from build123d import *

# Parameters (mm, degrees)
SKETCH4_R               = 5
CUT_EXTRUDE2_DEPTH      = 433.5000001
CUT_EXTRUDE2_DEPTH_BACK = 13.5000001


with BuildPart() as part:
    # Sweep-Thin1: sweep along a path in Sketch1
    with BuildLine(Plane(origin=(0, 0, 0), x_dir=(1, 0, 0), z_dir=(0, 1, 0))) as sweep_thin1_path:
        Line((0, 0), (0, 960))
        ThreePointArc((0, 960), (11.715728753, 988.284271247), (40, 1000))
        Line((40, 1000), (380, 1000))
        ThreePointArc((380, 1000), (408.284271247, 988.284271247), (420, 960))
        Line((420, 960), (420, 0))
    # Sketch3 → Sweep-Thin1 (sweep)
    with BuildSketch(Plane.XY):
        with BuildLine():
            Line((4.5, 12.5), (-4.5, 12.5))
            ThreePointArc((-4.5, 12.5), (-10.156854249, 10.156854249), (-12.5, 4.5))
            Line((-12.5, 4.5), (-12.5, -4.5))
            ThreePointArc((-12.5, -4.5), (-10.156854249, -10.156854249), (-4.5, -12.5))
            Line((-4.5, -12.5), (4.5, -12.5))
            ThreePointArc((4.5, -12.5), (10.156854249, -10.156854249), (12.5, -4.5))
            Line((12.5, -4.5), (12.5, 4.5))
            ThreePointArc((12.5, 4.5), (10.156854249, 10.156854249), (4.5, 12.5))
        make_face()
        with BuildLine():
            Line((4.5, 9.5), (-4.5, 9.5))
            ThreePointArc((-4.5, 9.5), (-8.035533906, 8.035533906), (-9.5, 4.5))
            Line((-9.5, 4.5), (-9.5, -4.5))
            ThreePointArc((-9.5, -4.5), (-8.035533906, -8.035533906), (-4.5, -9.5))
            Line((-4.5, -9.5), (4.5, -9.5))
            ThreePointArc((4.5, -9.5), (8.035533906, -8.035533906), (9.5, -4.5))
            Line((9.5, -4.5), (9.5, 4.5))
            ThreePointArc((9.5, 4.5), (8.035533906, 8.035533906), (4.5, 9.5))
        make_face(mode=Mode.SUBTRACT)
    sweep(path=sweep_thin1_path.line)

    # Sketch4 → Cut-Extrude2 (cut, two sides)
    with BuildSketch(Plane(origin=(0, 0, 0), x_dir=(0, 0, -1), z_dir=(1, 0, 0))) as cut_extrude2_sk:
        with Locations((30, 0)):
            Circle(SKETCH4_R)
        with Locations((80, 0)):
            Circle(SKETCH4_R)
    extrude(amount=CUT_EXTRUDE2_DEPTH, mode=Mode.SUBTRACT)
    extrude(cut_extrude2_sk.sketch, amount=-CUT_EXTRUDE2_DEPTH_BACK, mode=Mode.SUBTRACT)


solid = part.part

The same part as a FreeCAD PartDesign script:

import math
import FreeCAD as App
import Part
import Sketcher

V = App.Vector
Q = App.Units.Quantity

doc = App.newDocument("Part")
body = doc.addObject("PartDesign::Body", "Body")

# Sketch on XY plane
sketch1 = body.newObject("Sketcher::SketchObject", "Sketch")
sketch1.AttachmentSupport = (doc.getObject("XY_Plane"), [""])
sketch1.MapMode = "FlatFace"
sketch1.addGeometry([
    Part.LineSegment(V(4.5, 12.5, 0), V(-4.5, 12.5, 0)),  # 0
    Part.ArcOfCircle(Part.Circle(V(-4.5, 4.5, 0), V(0, 0, 1), 8), math.radians(90), math.radians(180)),  # 1
    Part.LineSegment(V(-12.5, 4.5, 0), V(-12.5, -4.5, 0)),  # 2
    Part.ArcOfCircle(Part.Circle(V(-4.5, -4.5, 0), V(0, 0, 1), 8), math.radians(-180), math.radians(-90)),  # 3
    Part.LineSegment(V(-4.5, -12.5, 0), V(4.5, -12.5, 0)),  # 4
    Part.ArcOfCircle(Part.Circle(V(4.5, -4.5, 0), V(0, 0, 1), 8), math.radians(-90), math.radians(0)),  # 5
    Part.LineSegment(V(12.5, -4.5, 0), V(12.5, 4.5, 0)),  # 6
    Part.ArcOfCircle(Part.Circle(V(4.5, 4.5, 0), V(0, 0, 1), 8), math.radians(0), math.radians(90)),  # 7
    Part.LineSegment(V(-4.5, 9.5, 0), V(4.5, 9.5, 0)),  # 8
    Part.ArcOfCircle(Part.Circle(V(4.5, 4.5, 0), V(0, 0, 1), 5), math.radians(0), math.radians(90)),  # 9
    Part.LineSegment(V(9.5, 4.5, 0), V(9.5, -4.5, 0)),  # 10
    Part.ArcOfCircle(Part.Circle(V(4.5, -4.5, 0), V(0, 0, 1), 5), math.radians(-90), math.radians(0)),  # 11
    Part.LineSegment(V(4.5, -9.5, 0), V(-4.5, -9.5, 0)),  # 12
    Part.ArcOfCircle(Part.Circle(V(-4.5, -4.5, 0), V(0, 0, 1), 5), math.radians(180), math.radians(270)),  # 13
    Part.LineSegment(V(-9.5, -4.5, 0), V(-9.5, 4.5, 0)),  # 14
    Part.ArcOfCircle(Part.Circle(V(-4.5, 4.5, 0), V(0, 0, 1), 5), math.radians(90), math.radians(180)),  # 15
], False)
sketch1.addConstraint([
    Sketcher.Constraint("Tangent", 0, 2, 1, 1),
    Sketcher.Constraint("Tangent", 1, 2, 2, 1),
    Sketcher.Constraint("Tangent", 2, 2, 3, 1),
    Sketcher.Constraint("Tangent", 3, 2, 4, 1),
    Sketcher.Constraint("Tangent", 4, 2, 5, 1),
    Sketcher.Constraint("Tangent", 5, 2, 6, 1),
    Sketcher.Constraint("Tangent", 6, 2, 7, 1),
    Sketcher.Constraint("Tangent", 7, 2, 0, 1),
    Sketcher.Constraint("Tangent", 8, 2, 9, 2),
    Sketcher.Constraint("Tangent", 9, 1, 10, 1),
    Sketcher.Constraint("Tangent", 10, 2, 11, 2),
    Sketcher.Constraint("Tangent", 11, 1, 12, 1),
    Sketcher.Constraint("Tangent", 12, 2, 13, 2),
    Sketcher.Constraint("Tangent", 13, 1, 14, 1),
    Sketcher.Constraint("Tangent", 14, 2, 15, 2),
    Sketcher.Constraint("Tangent", 15, 1, 8, 1),
    Sketcher.Constraint("Horizontal", 0),
    Sketcher.Constraint("Vertical", 2),
    Sketcher.Constraint("Horizontal", 4),
    Sketcher.Constraint("Vertical", 6),
    Sketcher.Constraint("Horizontal", 8),
    Sketcher.Constraint("Vertical", 10),
    Sketcher.Constraint("Horizontal", 12),
    Sketcher.Constraint("Vertical", 14),
    Sketcher.Constraint("Coincident", 9, 3, 7, 3),
    Sketcher.Constraint("Coincident", 11, 3, 5, 3),
    Sketcher.Constraint("Coincident", 13, 3, 3, 3),
    Sketcher.Constraint("Equal", 1, 3),
    Sketcher.Constraint("Equal", 3, 5),
    Sketcher.Constraint("Equal", 5, 7),
    Sketcher.Constraint("Equal", 13, 15),
    Sketcher.Constraint("Symmetric", 1, 3, 5, 3, -1, 1),
    Sketcher.Constraint("Equal", 12, 2),
    Sketcher.Constraint("Radius", 1, Q("8 mm")),
    Sketcher.Constraint("Radius", 9, Q("5 mm")),
    Sketcher.Constraint("DistanceX", 0, 2, 0, 1, Q("9 mm")),
])

# Sketch on XZ plane
sketch2 = body.newObject("Sketcher::SketchObject", "Sketch001")
sketch2.AttachmentSupport = (doc.getObject("XZ_Plane"), [""])
sketch2.MapMode = "FlatFace"
sketch2.addGeometry([
    Part.LineSegment(V(0, 0, 0), V(0, -960, 0)),  # 0
    Part.ArcOfCircle(Part.Circle(V(40, -960, 0), V(0, 0, 1), 40), math.radians(-180), math.radians(-90)),  # 1
    Part.LineSegment(V(40, -1000, 0), V(380, -1000, 0)),  # 2
    Part.ArcOfCircle(Part.Circle(V(380, -960, 0), V(0, 0, 1), 40), math.radians(-90), math.radians(0)),  # 3
    Part.LineSegment(V(420, -960, 0), V(420, 0, 0)),  # 4
], False)
sketch2.addConstraint([
    Sketcher.Constraint("Tangent", 0, 2, 1, 1),
    Sketcher.Constraint("Tangent", 1, 2, 2, 1),
    Sketcher.Constraint("Tangent", 2, 2, 3, 1),
    Sketcher.Constraint("Tangent", 3, 2, 4, 1),
    Sketcher.Constraint("Vertical", 0),
    Sketcher.Constraint("Horizontal", 2),
    Sketcher.Constraint("Vertical", 4),
    Sketcher.Constraint("Coincident", 0, 1, -1, 1),
    Sketcher.Constraint("Equal", 1, 3),
    Sketcher.Constraint("PointOnObject", 4, 2, -1),
    Sketcher.Constraint("Radius", 1, Q("40 mm")),
    Sketcher.Constraint("DistanceX", 2, 1, 2, 2, Q("340 mm")),
    Sketcher.Constraint("DistanceY", 0, 2, 0, 1, Q("960 mm")),
])
doc.recompute()

additivepipe = body.newObject("PartDesign::AdditivePipe", "AdditivePipe")
additivepipe.Profile = sketch1
additivepipe.Spine = (sketch2, ["Edge1", "Edge2", "Edge3", "Edge4", "Edge5"])

# Sketch on YZ plane
sketch3 = body.newObject("Sketcher::SketchObject", "Sketch002")
sketch3.AttachmentSupport = (doc.getObject("YZ_Plane"), [""])
sketch3.MapMode = "FlatFace"
sketch3.addGeometry([
    Part.Circle(V(0, -30, 0), V(0, 0, 1), 5),
    Part.Circle(V(0, -80, 0), V(0, 0, 1), 5),
], False)
sketch3.addConstraint([
    Sketcher.Constraint("Equal", 0, 1),
    Sketcher.Constraint("PointOnObject", 0, 3, -2),
    Sketcher.Constraint("PointOnObject", 1, 3, -2),
    Sketcher.Constraint("Diameter", 0, Q("10 mm")),
    Sketcher.Constraint("DistanceY", 0, 3, -1, 1, Q("30 mm")),
    Sketcher.Constraint("DistanceY", 1, 3, -1, 1, Q("80 mm")),
])
pocket1 = body.newObject("PartDesign::Pocket", "Pocket")
pocket1.Profile = sketch3
pocket1.Type = "ThroughAll"
pocket1.Midplane = True

doc.recompute()
